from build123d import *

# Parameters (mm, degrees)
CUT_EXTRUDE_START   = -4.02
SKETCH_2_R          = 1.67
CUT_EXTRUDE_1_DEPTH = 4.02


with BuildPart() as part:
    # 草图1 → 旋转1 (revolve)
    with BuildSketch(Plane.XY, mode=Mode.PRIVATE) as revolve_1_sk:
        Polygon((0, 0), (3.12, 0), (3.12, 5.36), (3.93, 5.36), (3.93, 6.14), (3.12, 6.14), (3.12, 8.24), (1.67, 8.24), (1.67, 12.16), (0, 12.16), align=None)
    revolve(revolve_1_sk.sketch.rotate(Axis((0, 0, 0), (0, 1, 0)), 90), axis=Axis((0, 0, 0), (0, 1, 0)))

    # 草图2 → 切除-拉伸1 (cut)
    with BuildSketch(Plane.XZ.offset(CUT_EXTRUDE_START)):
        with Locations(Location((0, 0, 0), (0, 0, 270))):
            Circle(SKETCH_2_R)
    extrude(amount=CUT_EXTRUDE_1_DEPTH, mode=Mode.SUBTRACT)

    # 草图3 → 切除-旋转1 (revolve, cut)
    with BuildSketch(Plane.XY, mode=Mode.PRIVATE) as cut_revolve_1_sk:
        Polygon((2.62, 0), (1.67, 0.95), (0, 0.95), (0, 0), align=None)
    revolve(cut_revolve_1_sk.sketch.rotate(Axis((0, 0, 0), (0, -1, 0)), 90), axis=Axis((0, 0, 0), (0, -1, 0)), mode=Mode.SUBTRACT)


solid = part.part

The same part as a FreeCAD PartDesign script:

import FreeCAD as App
import Part
import Sketcher
Q = App.Units.Quantity


def add_polygon(sketch, points):
    """Adds a closed chain of lines whose ends are joined by coincident constraints."""
    first, n = sketch.GeometryCount, len(points)
    for a, b in zip(points, points[1:] + points[:1]):
        sketch.addGeometry(Part.LineSegment(App.Vector(*a, 0), App.Vector(*b, 0)), False)
    for i in range(n):
        sketch.addConstraint(Sketcher.Constraint("Coincident", first + i, 2, first + (i + 1) % n, 1))

doc = App.newDocument("Part")
params = doc.addObject("Spreadsheet::Sheet", "Params")
for row, (alias, value) in enumerate([
    ("sketch1_height", "2.1 mm"),
    ("sketch1_width", "3.12 mm"),
    ("sketch1_width2", "0.81 mm"),
    ("sketch1_width3", "1.45 mm"),
    ("sketch1_height2", "5.36 mm"),
    ("revolution_angle", "360 deg"),
    ("sketch2_diameter", "3.34 mm"),
    ("pocket1_length", "4.02 mm"),
    ("sketch3_width", "1.67 mm"),
    ("sketch3_width2", "2.62 mm"),
    ("groove_angle", "360 deg"),
], start=1):
    params.set(f"A{row}", alias)
    params.set(f"B{row}", "=" + value)
    params.setAlias(f"B{row}", alias)

body = doc.addObject("PartDesign::Body", "Body")

# Sketch on XY plane
sketch1 = body.newObject("Sketcher::SketchObject", "Sketch")
sketch1.AttachmentSupport = (doc.getObject("XY_Plane"), [""])
sketch1.MapMode = "FlatFace"
add_polygon(sketch1, [(0, 0), (3.1, 0), (3.1, 5.4), (3.9, 5.4), (3.9, 6.1), (3.1, 6.1), (3.1, 8.2), (1.7, 8.2), (1.7, 12.2), (0, 12.2)])  # lines 0-9
sketch1.addConstraint(Sketcher.Constraint("Horizontal", 0))
sketch1.addConstraint(Sketcher.Constraint("Vertical", 1))
sketch1.addConstraint(Sketcher.Constraint("Horizontal", 2))
sketch1.addConstraint(Sketcher.Constraint("Vertical", 3))
sketch1.addConstraint(Sketcher.Constraint("Horizontal", 4))
sketch1.addConstraint(Sketcher.Constraint("Vertical", 5))
sketch1.addConstraint(Sketcher.Constraint("Horizontal", 6))
sketch1.addConstraint(Sketcher.Constraint("Vertical", 7))
sketch1.addConstraint(Sketcher.Constraint("Horizontal", 8))
sketch1.addConstraint(Sketcher.Constraint("Vertical", 9))
sketch1.addConstraint(Sketcher.Constraint("Coincident", 9, 2, -1, 1))
sketch1.addConstraint(Sketcher.Constraint("Vertical", 1, 2, 4, 2))
sketch1.addConstraint(Sketcher.Constraint("DistanceY", 5, 1, 5, 2, 2.1))
sketch1.addConstraint(Sketcher.Constraint("DistanceX", 0, 1, 0, 2, 3.12))
sketch1.addConstraint(Sketcher.Constraint("DistanceX", 2, 1, 2, 2, 0.81))
sketch1.addConstraint(Sketcher.Constraint("DistanceX", 6, 2, 6, 1, 1.45))
sketch1.addConstraint(Sketcher.Constraint("DistanceY", 1, 1, 1, 2, 5.36))
sketch1.addConstraint(Sketcher.Constraint("DistanceY", 3, 1, 3, 2, 0.78))
sketch1.addConstraint(Sketcher.Constraint("DistanceY", 7, 1, 7, 2, 3.92))
sketch1.setExpression("Constraints[22]", "Params.sketch1_height")
sketch1.setExpression("Constraints[23]", "Params.sketch1_width")
sketch1.setExpression("Constraints[24]", "Params.sketch1_width2")
sketch1.setExpression("Constraints[25]", "Params.sketch1_width3")
sketch1.setExpression("Constraints[26]", "Params.sketch1_height2")
revolution = body.newObject("PartDesign::Revolution", "Revolution")
revolution.Profile = sketch1
revolution.ReferenceAxis = (sketch1, ["V_Axis"])
revolution.setExpression("Angle", "Params.revolution_angle")

# Sketch on XZ plane
sketch2 = body.newObject("Sketcher::SketchObject", "Sketch001")
sketch2.AttachmentSupport = (doc.getObject("XZ_Plane"), [""])
sketch2.MapMode = "FlatFace"
sketch2.AttachmentOffset = App.Placement(App.Vector(0, 0, -4.02), App.Rotation())
sketch2.addGeometry(Part.Circle(App.Vector(0, 0, 0), App.Vector(0, 0, 1), 1.7), False)
sketch2.addConstraint(Sketcher.Constraint("Coincident", 0, 3, -1, 1))
sketch2.addConstraint(Sketcher.Constraint("Diameter", 0, 3.34))
sketch2.setExpression("Constraints[1]", "Params.sketch2_diameter")
pocket1 = body.newObject("PartDesign::Pocket", "Pocket")
pocket1.Profile = sketch2
pocket1.setExpression("Length", "Params.pocket1_length")
pocket1.Reversed = True

# Sketch on XY plane
sketch3 = body.newObject("Sketcher::SketchObject", "Sketch002")
sketch3.AttachmentSupport = (doc.getObject("XY_Plane"), [""])
sketch3.MapMode = "FlatFace"
add_polygon(sketch3, [(2.6, 0), (1.7, 0.9), (0, 0.9), (0, 0)])  # lines 0-3
sketch3.addConstraint(Sketcher.Constraint("Horizontal", 1))
sketch3.addConstraint(Sketcher.Constraint("Vertical", 2))
sketch3.addConstraint(Sketcher.Constraint("Horizontal", 3))
sketch3.addConstraint(Sketcher.Constraint("Coincident", 2, 2, -1, 1))
sketch3.addConstraint(Sketcher.Constraint("Angle", 0, Q("135 deg")))
sketch3.addConstraint(Sketcher.Constraint("DistanceX", 1, 2, 1, 1, 1.67))
sketch3.addConstraint(Sketcher.Constraint("DistanceX", 3, 1, 3, 2, 2.62))
sketch3.setExpression("Constraints[9]", "Params.sketch3_width")
sketch3.setExpression("Constraints[10]", "Params.sketch3_width2")
groove = body.newObject("PartDesign::Groove", "Groove")
groove.Profile = sketch3
groove.ReferenceAxis = (sketch3, ["V_Axis"])
groove.setExpression("Angle", "Params.groove_angle")

doc.recompute()
